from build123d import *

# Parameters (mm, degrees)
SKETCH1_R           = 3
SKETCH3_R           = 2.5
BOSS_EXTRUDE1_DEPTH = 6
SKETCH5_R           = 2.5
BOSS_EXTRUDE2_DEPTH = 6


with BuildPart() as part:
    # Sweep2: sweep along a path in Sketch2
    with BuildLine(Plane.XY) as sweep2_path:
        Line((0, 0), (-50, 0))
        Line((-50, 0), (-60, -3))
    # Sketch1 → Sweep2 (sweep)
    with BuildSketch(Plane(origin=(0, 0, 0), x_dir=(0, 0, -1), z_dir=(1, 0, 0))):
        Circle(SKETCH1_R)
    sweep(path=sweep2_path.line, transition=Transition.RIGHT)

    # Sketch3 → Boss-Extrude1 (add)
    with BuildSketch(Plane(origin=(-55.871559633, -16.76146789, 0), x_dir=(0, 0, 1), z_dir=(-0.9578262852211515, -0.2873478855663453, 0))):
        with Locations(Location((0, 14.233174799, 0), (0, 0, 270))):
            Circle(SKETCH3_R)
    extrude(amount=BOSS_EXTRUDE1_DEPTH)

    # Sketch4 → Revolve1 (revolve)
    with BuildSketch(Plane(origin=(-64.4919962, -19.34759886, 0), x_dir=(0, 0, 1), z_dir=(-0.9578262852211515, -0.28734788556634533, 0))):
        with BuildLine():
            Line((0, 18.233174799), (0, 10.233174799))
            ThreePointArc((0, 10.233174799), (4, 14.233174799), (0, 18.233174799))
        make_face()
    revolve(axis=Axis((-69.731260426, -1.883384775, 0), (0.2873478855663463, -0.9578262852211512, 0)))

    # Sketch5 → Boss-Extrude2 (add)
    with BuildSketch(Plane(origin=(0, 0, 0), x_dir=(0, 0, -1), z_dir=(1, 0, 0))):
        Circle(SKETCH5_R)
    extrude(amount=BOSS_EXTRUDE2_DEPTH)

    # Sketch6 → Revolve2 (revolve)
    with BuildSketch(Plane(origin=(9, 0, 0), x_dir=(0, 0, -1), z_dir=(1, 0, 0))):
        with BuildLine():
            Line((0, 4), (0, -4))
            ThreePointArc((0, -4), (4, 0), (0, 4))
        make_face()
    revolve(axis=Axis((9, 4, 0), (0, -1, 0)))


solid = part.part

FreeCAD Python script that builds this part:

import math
import FreeCAD as App
import Part
import Sketcher

V = App.Vector
Q = App.Units.Quantity

doc = App.newDocument("Part")
body = doc.addObject("PartDesign::Body", "Body")

sketch1 = body.newObject("Sketcher::SketchObject", "Sketch")
sketch1.AttachmentSupport = (doc.getObject("YZ_Plane"), [""])
sketch1.MapMode = "FlatFace"
sketch1.addGeometry(Part.Circle(V(0, 0, 0), V(0, 0, 1), 3), False)
sketch1.addConstraint([
    Sketcher.Constraint("Coincident", 0, 3, -1, 1),
    Sketcher.Constraint("Diameter", 0, Q("6 mm")),
])

sketch2 = body.newObject("Sketcher::SketchObject", "Sketch001")
sketch2.AttachmentSupport = (doc.getObject("XY_Plane"), [""])
sketch2.MapMode = "FlatFace"
sketch2.addGeometry([
    Part.LineSegment(V(0, 0, 0), V(-50, 0, 0)),
    Part.LineSegment(V(-50, 0, 0), V(-60, -3, 0)),
], False)
sketch2.addConstraint([
    Sketcher.Constraint("Coincident", 0, 2, 1, 1),
    Sketcher.Constraint("Horizontal", 0),
    Sketcher.Constraint("Coincident", 0, 1, -1, 1),
    Sketcher.Constraint("DistanceX", 0, 2, 0, 1, Q("50 mm")),
    Sketcher.Constraint("DistanceX", 1, 2, -1, 1, Q("60 mm")),
    Sketcher.Constraint("DistanceY", 1, 2, -1, 1, Q("3 mm")),
])
doc.recompute()

additivepipe = body.newObject("PartDesign::AdditivePipe", "AdditivePipe")
additivepipe.Profile = sketch1
additivepipe.Spine = (sketch2, ["Edge1", "Edge2"])
additivepipe.Transition = "Right corner"

sketch3 = body.newObject("Sketcher::SketchObject", "Sketch002")
sketch3.Placement = App.Placement(V(-55.87156, -16.761468, 0), App.Rotation(V(0, 0, 1), V(-0.287347886, 0.957826285, 0), V(-0.957826285, -0.287347886, 0), "ZXY"))
sketch3.addGeometry(Part.Circle(V(0, 14.2, 0), V(0, 0, 1), 2.5), False)
sketch3.addConstraint([
    Sketcher.Constraint("PointOnObject", 0, 3, -2),
    Sketcher.Constraint("Diameter", 0, Q("5 mm")),
    Sketcher.Constraint("DistanceY", -1, 1, 0, 3, Q("14.233175 mm")),
])
pad1 = body.newObject("PartDesign::Pad", "Pad")
pad1.Profile = sketch3
pad1.Length = 6

sketch4 = body.newObject("Sketcher::SketchObject", "Sketch003")
sketch4.Placement = App.Placement(V(-64.491996, -19.347599, 0), App.Rotation(V(0, 0, 1), V(-0.287347886, 0.957826285, 0), V(-0.957826285, -0.287347886, 0), "ZXY"))
sketch4.addGeometry([
    Part.LineSegment(V(0, 18.2, 0), V(0, 10.2, 0)),
    Part.ArcOfCircle(Part.Circle(V(0, 14.2, 0), V(0, 0, 1), 4), math.radians(-90), math.radians(90)),
], False)
sketch4.addConstraint([
    Sketcher.Constraint("Coincident", 0, 1, 1, 2),
    Sketcher.Constraint("Coincident", 1, 1, 0, 2),
    Sketcher.Constraint("Vertical", 0),
    Sketcher.Constraint("PointOnObject", 1, 3, -2),
    Sketcher.Constraint("PointOnObject", 0, 1, -2),
    Sketcher.Constraint("Radius", 1, Q("4 mm")),
    Sketcher.Constraint("DistanceY", -1, 1, 1, 3, Q("14.233175 mm")),
])
revolution = body.newObject("PartDesign::Revolution", "Revolution")
revolution.Profile = sketch4
revolution.ReferenceAxis = (sketch4, ["V_Axis"])
revolution.Angle = 360

sketch5 = body.newObject("Sketcher::SketchObject", "Sketch004")
sketch5.AttachmentSupport = (doc.getObject("YZ_Plane"), [""])
sketch5.MapMode = "FlatFace"
sketch5.addGeometry(Part.Circle(V(0, 0, 0), V(0, 0, 1), 2.5), False)
sketch5.addConstraint([
    Sketcher.Constraint("Coincident", 0, 3, -1, 1),
    Sketcher.Constraint("Diameter", 0, Q("5 mm")),
])
pad2 = body.newObject("PartDesign::Pad", "Pad001")
pad2.Profile = sketch5
pad2.Length = 6

sketch6 = body.newObject("Sketcher::SketchObject", "Sketch005")
sketch6.AttachmentSupport = (doc.getObject("YZ_Plane"), [""])
sketch6.MapMode = "FlatFace"
sketch6.AttachmentOffset = App.Placement(V(0, 0, 9), App.Rotation())
sketch6.addGeometry([
    Part.LineSegment(V(4, 0, 0), V(-4, 0, 0)),
    Part.ArcOfCircle(Part.Circle(V(0, 0, 0), V(0, 0, 1), 4), math.radians(180), math.radians(360)),
], False)
sketch6.addConstraint([
    Sketcher.Constraint("Coincident", 0, 1, 1, 2),
    Sketcher.Constraint("Coincident", 1, 1, 0, 2),
    Sketcher.Constraint("Horizontal", 0),
    Sketcher.Constraint("Coincident", 1, 3, -1, 1),
    Sketcher.Constraint("PointOnObject", 0, 1, -1),
    Sketcher.Constraint("Radius", 1, Q("4 mm")),
])
revolution2 = body.newObject("PartDesign::Revolution", "Revolution001")
revolution2.Profile = sketch6
revolution2.ReferenceAxis = (sketch6, ["H_Axis"])
revolution2.Angle = 360

doc.recompute()
